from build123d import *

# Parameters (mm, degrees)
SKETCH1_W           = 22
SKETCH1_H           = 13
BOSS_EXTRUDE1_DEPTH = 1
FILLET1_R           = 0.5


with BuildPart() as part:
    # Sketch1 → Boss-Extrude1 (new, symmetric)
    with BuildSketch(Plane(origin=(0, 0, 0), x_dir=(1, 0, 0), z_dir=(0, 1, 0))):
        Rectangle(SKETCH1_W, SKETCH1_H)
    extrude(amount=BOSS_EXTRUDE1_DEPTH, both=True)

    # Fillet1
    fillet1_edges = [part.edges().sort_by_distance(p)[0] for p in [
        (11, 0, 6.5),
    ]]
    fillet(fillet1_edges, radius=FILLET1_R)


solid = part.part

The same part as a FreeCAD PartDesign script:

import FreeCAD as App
import Part
import Sketcher
from FreeCAD import Vector


def edges_at(feature, points):
    """Names of the edges that pass closest to the given points."""
    edges = feature.Shape.Edges
    near = lambda p: min(range(len(edges)), key=lambda i: edges[i].distToShape(Part.Vertex(*p))[0])
    return sorted({f"Edge{near(p) + 1}" for p in points})


def add_polygon(sketch, points):
    """Adds a closed chain of lines whose ends are joined by coincident constraints."""
    first, n = sketch.GeometryCount, len(points)
    for a, b in zip(points, points[1:] + points[:1]):
        sketch.addGeometry(Part.LineSegment(App.Vector(*a, 0), App.Vector(*b, 0)), False)
    for i in range(n):
        sketch.addConstraint(Sketcher.Constraint("Coincident", first + i, 2, first + (i + 1) % n, 1))

doc = App.newDocument("Part")
body = doc.addObject("PartDesign::Body", "Body")

# Sketch on XZ plane
sketch1 = body.newObject("Sketcher::SketchObject", "Sketch")
sketch1.AttachmentSupport = (doc.getObject("XZ_Plane"), [""])
sketch1.MapMode = "FlatFace"
add_polygon(sketch1, [(-11, -6), (-11, 6), (11, 6), (11, -6)])  # lines 0-3
sketch1.addConstraint(Sketcher.Constraint("Vertical", 0))
sketch1.addConstraint(Sketcher.Constraint("Horizontal", 1))
sketch1.addConstraint(Sketcher.Constraint("Vertical", 2))
sketch1.addConstraint(Sketcher.Constraint("Horizontal", 3))
sketch1.addConstraint(Sketcher.Constraint("Symmetric", 0, 2, 2, 2, -1, 1))
sketch1.addConstraint(Sketcher.Constraint("DistanceX", 1, 1, 1, 2, 22.0))
sketch1.addConstraint(Sketcher.Constraint("DistanceY", 0, 1, 0, 2, 13.0))
pad1 = body.newObject("PartDesign::Pad", "Pad")
pad1.Profile = sketch1
pad1.Length = 2
pad1.Midplane = True
doc.recompute()

fillet = body.newObject("PartDesign::Fillet", "Fillet")
fillet.Base = (pad1, edges_at(pad1, [(11, 0, 6.5)]))
fillet.Radius = 0.5

doc.recompute()
